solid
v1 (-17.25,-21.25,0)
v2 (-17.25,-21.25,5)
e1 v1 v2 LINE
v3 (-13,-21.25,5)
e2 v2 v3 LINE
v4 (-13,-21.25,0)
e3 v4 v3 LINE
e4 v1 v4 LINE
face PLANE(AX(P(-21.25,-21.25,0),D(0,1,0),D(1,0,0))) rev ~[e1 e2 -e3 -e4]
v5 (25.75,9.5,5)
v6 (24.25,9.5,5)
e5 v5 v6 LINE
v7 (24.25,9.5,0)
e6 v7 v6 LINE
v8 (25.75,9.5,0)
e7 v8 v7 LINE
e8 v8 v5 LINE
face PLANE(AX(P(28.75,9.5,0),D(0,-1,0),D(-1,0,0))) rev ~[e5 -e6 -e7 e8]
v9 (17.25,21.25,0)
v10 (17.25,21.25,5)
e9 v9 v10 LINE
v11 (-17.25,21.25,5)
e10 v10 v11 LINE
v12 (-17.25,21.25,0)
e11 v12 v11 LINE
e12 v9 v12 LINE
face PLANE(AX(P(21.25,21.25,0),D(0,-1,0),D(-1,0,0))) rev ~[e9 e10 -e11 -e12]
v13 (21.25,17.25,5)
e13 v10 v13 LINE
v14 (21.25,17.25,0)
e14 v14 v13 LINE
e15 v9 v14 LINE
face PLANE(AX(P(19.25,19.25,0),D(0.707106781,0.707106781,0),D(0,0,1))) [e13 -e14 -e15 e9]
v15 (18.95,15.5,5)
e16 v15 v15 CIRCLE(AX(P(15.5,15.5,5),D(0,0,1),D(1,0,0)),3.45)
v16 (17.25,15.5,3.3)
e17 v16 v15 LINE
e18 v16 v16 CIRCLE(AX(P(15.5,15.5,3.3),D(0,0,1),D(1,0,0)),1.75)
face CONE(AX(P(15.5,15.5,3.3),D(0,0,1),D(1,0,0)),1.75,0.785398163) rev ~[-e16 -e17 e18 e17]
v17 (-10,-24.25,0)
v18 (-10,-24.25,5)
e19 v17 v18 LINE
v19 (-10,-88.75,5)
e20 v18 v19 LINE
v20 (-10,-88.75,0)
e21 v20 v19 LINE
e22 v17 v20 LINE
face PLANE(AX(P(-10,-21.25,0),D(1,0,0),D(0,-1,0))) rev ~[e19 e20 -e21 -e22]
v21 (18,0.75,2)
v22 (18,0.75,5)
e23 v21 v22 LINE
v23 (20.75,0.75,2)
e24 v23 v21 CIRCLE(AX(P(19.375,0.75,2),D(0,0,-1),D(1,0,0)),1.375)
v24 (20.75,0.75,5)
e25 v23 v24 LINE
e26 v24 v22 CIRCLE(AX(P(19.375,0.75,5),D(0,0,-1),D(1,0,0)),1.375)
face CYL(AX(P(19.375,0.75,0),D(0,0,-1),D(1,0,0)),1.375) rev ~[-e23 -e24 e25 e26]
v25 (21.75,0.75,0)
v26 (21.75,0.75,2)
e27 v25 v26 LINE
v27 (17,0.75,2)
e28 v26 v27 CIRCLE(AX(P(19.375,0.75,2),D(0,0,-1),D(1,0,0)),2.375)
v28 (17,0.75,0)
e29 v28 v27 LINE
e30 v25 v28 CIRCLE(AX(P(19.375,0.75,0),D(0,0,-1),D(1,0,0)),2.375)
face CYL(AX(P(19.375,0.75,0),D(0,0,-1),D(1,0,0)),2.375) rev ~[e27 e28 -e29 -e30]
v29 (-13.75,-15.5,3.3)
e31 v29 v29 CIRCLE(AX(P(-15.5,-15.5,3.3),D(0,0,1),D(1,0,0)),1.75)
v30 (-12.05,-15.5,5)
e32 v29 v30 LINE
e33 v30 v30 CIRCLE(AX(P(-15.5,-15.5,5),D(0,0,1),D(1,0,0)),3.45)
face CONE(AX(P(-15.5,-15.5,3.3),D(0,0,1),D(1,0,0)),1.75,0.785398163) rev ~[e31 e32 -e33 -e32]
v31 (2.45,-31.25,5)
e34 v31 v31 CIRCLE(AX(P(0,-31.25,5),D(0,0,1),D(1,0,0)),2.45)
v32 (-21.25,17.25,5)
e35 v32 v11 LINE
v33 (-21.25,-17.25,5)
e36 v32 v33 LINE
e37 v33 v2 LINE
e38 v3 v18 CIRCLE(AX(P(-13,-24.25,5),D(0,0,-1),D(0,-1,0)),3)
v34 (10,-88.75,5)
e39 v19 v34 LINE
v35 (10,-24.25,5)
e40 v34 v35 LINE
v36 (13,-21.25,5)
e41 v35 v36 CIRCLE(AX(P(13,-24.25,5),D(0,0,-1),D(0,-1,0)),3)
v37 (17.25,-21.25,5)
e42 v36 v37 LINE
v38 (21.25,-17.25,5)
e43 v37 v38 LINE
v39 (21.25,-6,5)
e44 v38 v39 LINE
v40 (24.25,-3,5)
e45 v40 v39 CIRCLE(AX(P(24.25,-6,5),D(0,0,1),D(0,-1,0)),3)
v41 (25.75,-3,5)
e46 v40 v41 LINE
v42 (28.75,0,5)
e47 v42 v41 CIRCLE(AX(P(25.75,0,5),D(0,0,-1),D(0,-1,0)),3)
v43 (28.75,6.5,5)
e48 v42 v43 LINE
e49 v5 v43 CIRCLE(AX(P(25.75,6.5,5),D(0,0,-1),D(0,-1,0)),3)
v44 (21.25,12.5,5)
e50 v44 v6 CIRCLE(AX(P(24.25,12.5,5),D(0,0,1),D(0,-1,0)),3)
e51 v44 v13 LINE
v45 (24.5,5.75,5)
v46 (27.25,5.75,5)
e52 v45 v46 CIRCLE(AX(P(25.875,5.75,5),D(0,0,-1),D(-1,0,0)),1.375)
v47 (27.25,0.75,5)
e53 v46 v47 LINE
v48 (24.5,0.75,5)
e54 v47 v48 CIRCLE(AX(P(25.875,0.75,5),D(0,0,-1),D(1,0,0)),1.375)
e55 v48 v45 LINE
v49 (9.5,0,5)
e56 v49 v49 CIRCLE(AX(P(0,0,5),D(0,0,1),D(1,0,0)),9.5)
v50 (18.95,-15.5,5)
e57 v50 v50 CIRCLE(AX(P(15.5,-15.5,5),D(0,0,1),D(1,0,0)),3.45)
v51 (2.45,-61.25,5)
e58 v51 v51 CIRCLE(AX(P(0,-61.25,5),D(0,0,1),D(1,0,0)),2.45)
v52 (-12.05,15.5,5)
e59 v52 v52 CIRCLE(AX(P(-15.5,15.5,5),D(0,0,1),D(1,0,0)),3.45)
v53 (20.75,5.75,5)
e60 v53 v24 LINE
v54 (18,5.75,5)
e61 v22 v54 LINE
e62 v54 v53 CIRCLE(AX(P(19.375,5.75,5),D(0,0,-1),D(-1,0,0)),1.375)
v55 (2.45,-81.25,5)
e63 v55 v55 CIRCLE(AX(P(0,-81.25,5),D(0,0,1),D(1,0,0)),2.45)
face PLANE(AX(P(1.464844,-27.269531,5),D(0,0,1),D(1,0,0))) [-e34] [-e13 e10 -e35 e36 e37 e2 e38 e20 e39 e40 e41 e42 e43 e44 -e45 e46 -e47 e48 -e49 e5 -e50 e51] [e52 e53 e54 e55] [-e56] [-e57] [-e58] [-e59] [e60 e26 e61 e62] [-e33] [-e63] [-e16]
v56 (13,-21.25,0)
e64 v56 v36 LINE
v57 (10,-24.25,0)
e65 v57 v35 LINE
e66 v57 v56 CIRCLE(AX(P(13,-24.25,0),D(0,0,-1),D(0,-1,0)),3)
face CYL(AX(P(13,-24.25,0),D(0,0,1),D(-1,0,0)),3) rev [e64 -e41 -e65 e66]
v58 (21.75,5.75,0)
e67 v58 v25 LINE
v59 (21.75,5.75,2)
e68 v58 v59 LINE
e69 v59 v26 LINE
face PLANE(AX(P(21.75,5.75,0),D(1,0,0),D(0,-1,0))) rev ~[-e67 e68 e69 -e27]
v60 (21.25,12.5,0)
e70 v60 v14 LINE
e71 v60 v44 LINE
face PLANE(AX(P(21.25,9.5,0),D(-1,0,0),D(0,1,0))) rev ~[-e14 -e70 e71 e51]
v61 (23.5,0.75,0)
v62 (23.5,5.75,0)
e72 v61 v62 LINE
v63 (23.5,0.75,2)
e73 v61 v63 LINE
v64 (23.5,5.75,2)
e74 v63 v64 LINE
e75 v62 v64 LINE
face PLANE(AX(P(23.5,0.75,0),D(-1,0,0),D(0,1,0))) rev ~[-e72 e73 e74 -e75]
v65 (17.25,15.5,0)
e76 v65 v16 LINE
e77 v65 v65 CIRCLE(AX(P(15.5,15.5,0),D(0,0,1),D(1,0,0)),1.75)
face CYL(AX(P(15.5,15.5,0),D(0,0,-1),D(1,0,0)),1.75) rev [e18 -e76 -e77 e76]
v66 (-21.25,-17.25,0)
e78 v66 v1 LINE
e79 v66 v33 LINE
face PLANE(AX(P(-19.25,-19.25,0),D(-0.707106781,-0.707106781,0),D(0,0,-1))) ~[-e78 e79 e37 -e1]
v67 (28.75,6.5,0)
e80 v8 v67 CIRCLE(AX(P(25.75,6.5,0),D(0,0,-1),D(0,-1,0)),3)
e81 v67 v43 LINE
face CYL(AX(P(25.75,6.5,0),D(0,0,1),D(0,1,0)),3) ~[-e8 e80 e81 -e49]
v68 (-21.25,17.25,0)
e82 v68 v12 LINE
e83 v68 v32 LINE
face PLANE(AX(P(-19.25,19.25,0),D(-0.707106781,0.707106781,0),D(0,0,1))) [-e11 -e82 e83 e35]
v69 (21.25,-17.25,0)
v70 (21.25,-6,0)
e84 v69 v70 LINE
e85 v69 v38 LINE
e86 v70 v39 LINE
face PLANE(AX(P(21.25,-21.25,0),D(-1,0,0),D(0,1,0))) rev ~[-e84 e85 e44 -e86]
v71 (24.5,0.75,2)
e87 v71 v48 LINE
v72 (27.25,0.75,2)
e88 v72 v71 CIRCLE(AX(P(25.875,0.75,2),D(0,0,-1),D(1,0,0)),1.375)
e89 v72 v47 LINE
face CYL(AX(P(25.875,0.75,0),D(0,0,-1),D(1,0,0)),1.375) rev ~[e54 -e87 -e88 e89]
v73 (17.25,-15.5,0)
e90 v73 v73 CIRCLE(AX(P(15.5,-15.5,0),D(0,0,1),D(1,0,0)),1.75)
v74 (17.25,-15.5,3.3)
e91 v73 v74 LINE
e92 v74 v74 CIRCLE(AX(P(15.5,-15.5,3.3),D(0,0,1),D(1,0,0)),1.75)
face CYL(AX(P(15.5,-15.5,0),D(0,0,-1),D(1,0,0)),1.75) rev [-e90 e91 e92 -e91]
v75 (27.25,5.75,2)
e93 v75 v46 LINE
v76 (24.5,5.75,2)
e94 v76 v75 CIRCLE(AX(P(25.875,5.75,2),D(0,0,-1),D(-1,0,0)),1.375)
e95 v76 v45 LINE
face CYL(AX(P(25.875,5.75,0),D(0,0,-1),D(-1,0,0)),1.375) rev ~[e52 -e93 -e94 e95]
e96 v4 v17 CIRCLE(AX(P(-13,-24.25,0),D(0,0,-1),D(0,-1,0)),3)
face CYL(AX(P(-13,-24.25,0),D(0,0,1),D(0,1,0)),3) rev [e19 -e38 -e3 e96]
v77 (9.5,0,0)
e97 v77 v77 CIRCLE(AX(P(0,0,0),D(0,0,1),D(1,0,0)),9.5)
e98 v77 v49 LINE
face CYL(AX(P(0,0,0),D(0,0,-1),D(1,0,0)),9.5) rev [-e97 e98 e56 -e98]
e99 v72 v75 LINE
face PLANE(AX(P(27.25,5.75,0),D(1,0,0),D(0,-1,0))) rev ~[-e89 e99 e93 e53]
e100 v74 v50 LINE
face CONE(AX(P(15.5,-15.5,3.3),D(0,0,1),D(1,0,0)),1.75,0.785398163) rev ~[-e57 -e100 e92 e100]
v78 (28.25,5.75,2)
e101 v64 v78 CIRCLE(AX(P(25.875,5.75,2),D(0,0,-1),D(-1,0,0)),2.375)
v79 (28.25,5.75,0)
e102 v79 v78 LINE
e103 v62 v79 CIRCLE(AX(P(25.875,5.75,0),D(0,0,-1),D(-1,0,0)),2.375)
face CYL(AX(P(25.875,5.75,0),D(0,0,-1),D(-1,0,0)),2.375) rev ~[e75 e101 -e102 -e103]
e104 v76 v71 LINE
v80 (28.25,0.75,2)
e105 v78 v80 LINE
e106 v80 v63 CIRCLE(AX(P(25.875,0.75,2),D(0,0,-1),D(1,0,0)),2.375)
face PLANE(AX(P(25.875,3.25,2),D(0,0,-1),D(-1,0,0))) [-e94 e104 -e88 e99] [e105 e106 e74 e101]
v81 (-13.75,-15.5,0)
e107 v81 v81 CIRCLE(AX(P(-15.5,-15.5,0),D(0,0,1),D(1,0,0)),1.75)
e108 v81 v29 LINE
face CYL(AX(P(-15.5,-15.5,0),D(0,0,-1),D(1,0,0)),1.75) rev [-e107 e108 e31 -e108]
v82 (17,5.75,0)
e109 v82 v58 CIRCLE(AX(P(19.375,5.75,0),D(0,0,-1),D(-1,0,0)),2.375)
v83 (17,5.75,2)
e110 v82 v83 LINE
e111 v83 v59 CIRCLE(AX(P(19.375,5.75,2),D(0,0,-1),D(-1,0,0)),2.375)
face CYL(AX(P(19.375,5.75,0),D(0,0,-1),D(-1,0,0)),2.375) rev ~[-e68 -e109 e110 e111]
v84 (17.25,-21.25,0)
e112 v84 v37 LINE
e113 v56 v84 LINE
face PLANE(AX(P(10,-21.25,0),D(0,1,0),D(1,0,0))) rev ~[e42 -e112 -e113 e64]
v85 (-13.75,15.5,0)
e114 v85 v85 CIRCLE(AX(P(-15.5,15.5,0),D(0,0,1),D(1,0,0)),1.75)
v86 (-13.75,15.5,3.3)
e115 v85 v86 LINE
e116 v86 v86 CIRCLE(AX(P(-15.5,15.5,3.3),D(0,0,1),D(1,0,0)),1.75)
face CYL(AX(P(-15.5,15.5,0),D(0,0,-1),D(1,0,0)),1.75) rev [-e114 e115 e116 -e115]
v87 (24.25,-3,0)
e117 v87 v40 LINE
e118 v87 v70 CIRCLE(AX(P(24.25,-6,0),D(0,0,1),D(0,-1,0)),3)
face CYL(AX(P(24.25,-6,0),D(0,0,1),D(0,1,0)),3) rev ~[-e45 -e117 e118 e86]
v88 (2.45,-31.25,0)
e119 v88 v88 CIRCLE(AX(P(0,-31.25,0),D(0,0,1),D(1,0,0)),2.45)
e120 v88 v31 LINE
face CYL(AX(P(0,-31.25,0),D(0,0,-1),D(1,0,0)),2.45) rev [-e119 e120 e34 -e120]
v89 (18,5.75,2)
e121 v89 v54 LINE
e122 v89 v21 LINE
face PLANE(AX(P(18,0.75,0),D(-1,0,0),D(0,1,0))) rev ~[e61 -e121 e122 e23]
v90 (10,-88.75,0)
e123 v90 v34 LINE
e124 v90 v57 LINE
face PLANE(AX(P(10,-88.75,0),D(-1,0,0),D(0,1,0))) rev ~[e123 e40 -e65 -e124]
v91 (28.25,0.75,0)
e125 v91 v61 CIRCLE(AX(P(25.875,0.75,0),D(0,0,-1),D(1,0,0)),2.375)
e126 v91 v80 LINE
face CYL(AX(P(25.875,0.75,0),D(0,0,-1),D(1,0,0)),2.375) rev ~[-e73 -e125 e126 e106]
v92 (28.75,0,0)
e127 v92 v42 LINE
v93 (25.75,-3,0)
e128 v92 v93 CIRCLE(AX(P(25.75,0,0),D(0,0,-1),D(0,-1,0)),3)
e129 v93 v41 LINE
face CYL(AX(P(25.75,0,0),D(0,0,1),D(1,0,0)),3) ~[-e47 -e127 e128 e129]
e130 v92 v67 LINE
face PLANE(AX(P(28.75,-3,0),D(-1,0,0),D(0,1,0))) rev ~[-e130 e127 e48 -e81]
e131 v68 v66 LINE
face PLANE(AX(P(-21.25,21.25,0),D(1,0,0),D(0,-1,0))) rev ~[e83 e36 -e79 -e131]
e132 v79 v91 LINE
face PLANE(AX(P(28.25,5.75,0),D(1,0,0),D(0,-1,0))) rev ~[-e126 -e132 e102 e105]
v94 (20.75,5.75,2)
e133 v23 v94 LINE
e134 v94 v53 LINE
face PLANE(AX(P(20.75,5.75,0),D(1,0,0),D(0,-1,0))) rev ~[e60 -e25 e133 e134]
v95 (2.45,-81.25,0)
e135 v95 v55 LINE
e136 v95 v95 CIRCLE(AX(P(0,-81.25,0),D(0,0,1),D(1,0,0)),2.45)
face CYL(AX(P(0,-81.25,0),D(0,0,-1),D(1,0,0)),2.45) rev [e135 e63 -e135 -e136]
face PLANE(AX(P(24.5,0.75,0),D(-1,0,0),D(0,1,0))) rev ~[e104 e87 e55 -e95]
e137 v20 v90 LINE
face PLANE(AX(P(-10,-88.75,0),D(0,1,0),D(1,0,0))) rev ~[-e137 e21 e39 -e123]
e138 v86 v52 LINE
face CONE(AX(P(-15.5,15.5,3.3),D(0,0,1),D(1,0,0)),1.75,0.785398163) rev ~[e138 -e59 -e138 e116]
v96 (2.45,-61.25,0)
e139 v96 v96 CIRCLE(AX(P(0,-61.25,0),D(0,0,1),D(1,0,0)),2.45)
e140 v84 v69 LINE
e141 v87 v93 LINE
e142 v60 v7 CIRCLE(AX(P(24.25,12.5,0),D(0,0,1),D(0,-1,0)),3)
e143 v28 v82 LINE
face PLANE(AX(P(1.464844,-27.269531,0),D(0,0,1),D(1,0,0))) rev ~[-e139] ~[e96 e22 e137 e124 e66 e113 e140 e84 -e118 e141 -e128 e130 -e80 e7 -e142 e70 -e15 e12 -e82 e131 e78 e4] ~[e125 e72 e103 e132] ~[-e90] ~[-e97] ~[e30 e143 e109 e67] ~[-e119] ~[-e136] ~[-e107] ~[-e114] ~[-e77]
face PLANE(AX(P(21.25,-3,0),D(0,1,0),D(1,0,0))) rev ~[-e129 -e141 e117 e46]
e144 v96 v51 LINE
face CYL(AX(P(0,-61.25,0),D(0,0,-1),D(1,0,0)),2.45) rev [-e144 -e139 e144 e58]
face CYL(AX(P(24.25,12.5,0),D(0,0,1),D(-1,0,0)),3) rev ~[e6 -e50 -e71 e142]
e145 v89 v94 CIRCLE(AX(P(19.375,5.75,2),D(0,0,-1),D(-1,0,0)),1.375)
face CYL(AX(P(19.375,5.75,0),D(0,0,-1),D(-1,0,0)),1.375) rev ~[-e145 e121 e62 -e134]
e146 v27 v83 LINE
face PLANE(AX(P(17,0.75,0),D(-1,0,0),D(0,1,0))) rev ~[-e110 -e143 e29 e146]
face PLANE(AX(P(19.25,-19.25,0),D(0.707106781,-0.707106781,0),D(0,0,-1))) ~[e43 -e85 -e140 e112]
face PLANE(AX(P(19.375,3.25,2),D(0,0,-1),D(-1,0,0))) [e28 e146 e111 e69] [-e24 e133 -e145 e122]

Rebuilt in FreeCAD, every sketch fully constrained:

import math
import FreeCAD as App
import Part
import Sketcher
from FreeCAD import Vector


def edges_at(feature, points):
    """Names of the edges that pass closest to the given points."""
    edges = feature.Shape.Edges
    near = lambda p: min(range(len(edges)), key=lambda i: edges[i].distToShape(Part.Vertex(*p))[0])
    return sorted({f"Edge{near(p) + 1}" for p in points})

doc = App.newDocument("Part")
body = doc.addObject("PartDesign::Body", "Body")

# Sketch on XY plane
sketch1 = doc.addObject("Sketcher::SketchObject", "Sketch")
body.addObject(sketch1)
sketch1.AttachmentSupport = (doc.XY_Plane, [""])
sketch1.MapMode = "FlatFace"
sketch1.addGeometry([
    Part.LineSegment(Vector(-21.2, 21.2, 0), Vector(-21.2, -21.2, 0)),  # 0
    Part.LineSegment(Vector(-21.2, -21.2, 0), Vector(-10, -21.2, 0)),  # 1
    Part.LineSegment(Vector(-10, -21.2, 0), Vector(-10, -88.8, 0)),  # 2
    Part.LineSegment(Vector(-10, -88.8, 0), Vector(10, -88.8, 0)),  # 3
    Part.LineSegment(Vector(10, -88.8, 0), Vector(10, -21.2, 0)),  # 4
    Part.LineSegment(Vector(10, -21.2, 0), Vector(21.2, -21.2, 0)),  # 5
    Part.LineSegment(Vector(21.2, -21.2, 0), Vector(21.2, -3, 0)),  # 6
    Part.LineSegment(Vector(21.2, -3, 0), Vector(28.8, -3, 0)),  # 7
    Part.LineSegment(Vector(28.8, -3, 0), Vector(28.8, 9.5, 0)),  # 8
    Part.LineSegment(Vector(28.8, 9.5, 0), Vector(21.2, 9.5, 0)),  # 9
    Part.LineSegment(Vector(21.2, 9.5, 0), Vector(21.2, 21.2, 0)),  # 10
    Part.LineSegment(Vector(21.2, 21.2, 0), Vector(-21.2, 21.2, 0)),  # 11
    Part.Circle(Vector(0, -81.2, 0), Vector(0, 0, 1), 2.5),  # 12
    Part.Circle(Vector(0, -61.2, 0), Vector(0, 0, 1), 2.5),  # 13
    Part.Circle(Vector(-15.5, -15.5, 0), Vector(0, 0, 1), 1.8),  # 14
    Part.Circle(Vector(0, -31.2, 0), Vector(0, 0, 1), 2.5),  # 15
    Part.Circle(Vector(-15.5, 15.5, 0), Vector(0, 0, 1), 1.8),  # 16
    Part.Circle(Vector(0, 0, 0), Vector(0, 0, 1), 9.5),  # 17
    Part.Circle(Vector(15.5, -15.5, 0), Vector(0, 0, 1), 1.8),  # 18
    Part.Circle(Vector(15.5, 15.5, 0), Vector(0, 0, 1), 1.8),  # 19
    Part.LineSegment(Vector(20.8, 5.8, 0), Vector(20.8, 0.8, 0)),  # 20
    Part.ArcOfCircle(Part.Circle(Vector(19.4, 0.8, 0), Vector(0, 0, 1), 1.4), math.radians(180), math.radians(360)),  # 21
    Part.LineSegment(Vector(18, 0.8, 0), Vector(18, 5.8, 0)),  # 22
    Part.ArcOfCircle(Part.Circle(Vector(19.4, 5.8, 0), Vector(0, 0, 1), 1.4), math.radians(0), math.radians(180)),  # 23
    Part.ArcOfCircle(Part.Circle(Vector(25.9, 0.8, 0), Vector(0, 0, 1), 1.4), math.radians(180), math.radians(360)),  # 24
    Part.LineSegment(Vector(24.5, 0.8, 0), Vector(24.5, 5.8, 0)),  # 25
    Part.ArcOfCircle(Part.Circle(Vector(25.9, 5.8, 0), Vector(0, 0, 1), 1.4), math.radians(0), math.radians(180)),  # 26
    Part.LineSegment(Vector(27.2, 5.8, 0), Vector(27.2, 0.8, 0)),  # 27
], False)
sketch1.addConstraint([
    Sketcher.Constraint("Coincident", 0, 2, 1, 1),
    Sketcher.Constraint("Coincident", 1, 2, 2, 1),
    Sketcher.Constraint("Coincident", 2, 2, 3, 1),
    Sketcher.Constraint("Coincident", 3, 2, 4, 1),
    Sketcher.Constraint("Coincident", 4, 2, 5, 1),
    Sketcher.Constraint("Coincident", 5, 2, 6, 1),
    Sketcher.Constraint("Coincident", 6, 2, 7, 1),
    Sketcher.Constraint("Coincident", 7, 2, 8, 1),
    Sketcher.Constraint("Coincident", 8, 2, 9, 1),
    Sketcher.Constraint("Coincident", 9, 2, 10, 1),
    Sketcher.Constraint("Coincident", 10, 2, 11, 1),
    Sketcher.Constraint("Coincident", 11, 2, 0, 1),
    Sketcher.Constraint("Tangent", 20, 2, 21, 2),
    Sketcher.Constraint("Tangent", 21, 1, 22, 1),
    Sketcher.Constraint("Tangent", 22, 2, 23, 2),
    Sketcher.Constraint("Tangent", 23, 1, 20, 1),
    Sketcher.Constraint("Tangent", 24, 1, 25, 1),
    Sketcher.Constraint("Tangent", 25, 2, 26, 2),
    Sketcher.Constraint("Tangent", 26, 1, 27, 1),
    Sketcher.Constraint("Tangent", 27, 2, 24, 2),
    Sketcher.Constraint("Vertical", 0),
    Sketcher.Constraint("Horizontal", 1),
    Sketcher.Constraint("Vertical", 2),
    Sketcher.Constraint("Horizontal", 3),
    Sketcher.Constraint("Vertical", 4),
    Sketcher.Constraint("Horizontal", 5),
    Sketcher.Constraint("Vertical", 6),
    Sketcher.Constraint("Horizontal", 7),
    Sketcher.Constraint("Vertical", 8),
    Sketcher.Constraint("Horizontal", 9),
    Sketcher.Constraint("Vertical", 10),
    Sketcher.Constraint("Horizontal", 11),
    Sketcher.Constraint("Vertical", 20),
    Sketcher.Constraint("Vertical", 22),
    Sketcher.Constraint("Vertical", 25),
    Sketcher.Constraint("Vertical", 27),
    Sketcher.Constraint("Coincident", 17, 3, -1, 1),
    Sketcher.Constraint("Equal", 12, 13),
    Sketcher.Constraint("Equal", 13, 15),
    Sketcher.Constraint("Equal", 14, 16),
    Sketcher.Constraint("Equal", 16, 18),
    Sketcher.Constraint("Equal", 18, 19),
    Sketcher.Constraint("Equal", 23, 24),
    Sketcher.Constraint("Symmetric", 16, 3, 18, 3, -1, 1),
    Sketcher.Constraint("Symmetric", 14, 3, 19, 3, -1, 1),
    Sketcher.Constraint("Symmetric", 0, 2, 10, 2, -1, 1),
    Sketcher.Constraint("Symmetric", 5, 2, 11, 2, -1, 1),
    Sketcher.Constraint("Symmetric", 14, 3, 18, 3, -2),
    Sketcher.Constraint("PointOnObject", 12, 3, -2),
    Sketcher.Constraint("PointOnObject", 13, 3, -2),
    Sketcher.Constraint("PointOnObject", 15, 3, -2),
    Sketcher.Constraint("Horizontal", 21, 3, 24, 3),
    Sketcher.Constraint("Horizontal", 23, 3, 26, 3),
    Sketcher.Constraint("Equal", 1, 5),
    Sketcher.Constraint("Equal", 11, 0),
    Sketcher.Constraint("Diameter", 17, 19.0),
    Sketcher.Constraint("Diameter", 12, 4.9),
    Sketcher.Constraint("Diameter", 14, 3.5),
    Sketcher.Constraint("DistanceX", 3, 1, 3, 2, 20.0),
    Sketcher.Constraint("DistanceY", 20, 2, 20, 1, 5.0),
    Sketcher.Constraint("DistanceX", 7, 1, 7, 2, 7.5),
    Sketcher.Constraint("DistanceX", 11, 2, 11, 1, 42.5),
    Sketcher.Constraint("DistanceY", 2, 2, 2, 1, 67.5),
    Sketcher.Constraint("DistanceY", 8, 1, 8, 2, 12.5),
    Sketcher.Constraint("DistanceY", 6, 2, -1, 1, 3.0),
    Sketcher.Constraint("DistanceX", -1, 1, 21, 1, 18.0),
    Sketcher.Constraint("Radius", 21, 1.375),
    Sketcher.Constraint("DistanceY", 12, 3, 13, 3, 20.0),
    Sketcher.Constraint("DistanceY", 13, 3, 15, 3, 30.0),
    Sketcher.Constraint("DistanceY", 14, 3, 16, 3, 31.0),
    Sketcher.Constraint("DistanceX", 14, 3, 18, 3, 31.0),
    Sketcher.Constraint("DistanceY", 15, 3, 21, 3, 32.0),
    Sketcher.Constraint("DistanceY", 15, 3, 0, 2, 10.0),
    Sketcher.Constraint("DistanceX", -1, 1, 24, 1, 24.5),
])
pad1 = doc.addObject("PartDesign::Pad", "Pad")
body.addObject(pad1)
pad1.Profile = sketch1
pad1.Length = 5
doc.recompute()

chamfer = doc.addObject("PartDesign::Chamfer", "Chamfer")
body.addObject(chamfer)
chamfer.Base = (pad1, edges_at(pad1, [
    (-21.25, -21.25, 2.5),
    (-21.25, 21.25, 2.5),
    (21.25, 21.25, 2.5),
    (21.25, -21.25, 2.5),
]))
chamfer.Size = 4
doc.recompute()

fillet = doc.addObject("PartDesign::Fillet", "Fillet")
body.addObject(fillet)
fillet.Base = (chamfer, edges_at(chamfer, [
    (21.25, 9.5, 2.5),
    (28.75, 9.5, 2.5),
    (28.75, -3, 2.5),
    (21.25, -3, 2.5),
    (10, -21.25, 2.5),
    (-10, -21.25, 2.5),
]))
fillet.Radius = 3
doc.recompute()

chamfer2 = doc.addObject("PartDesign::Chamfer", "Chamfer001")
body.addObject(chamfer2)
chamfer2.Base = (fillet, edges_at(fillet, [
    (-17.25, -15.5, 5),
    (13.75, -15.5, 5),
    (13.75, 15.5, 5),
    (-17.25, 15.5, 5),
]))
chamfer2.Size = 1.7

# Sketch on XY plane
sketch2 = doc.addObject("Sketcher::SketchObject", "Sketch001")
body.addObject(sketch2)
sketch2.AttachmentSupport = (doc.XY_Plane, [""])
sketch2.MapMode = "FlatFace"
sketch2.addGeometry([
    Part.LineSegment(Vector(28.2, 5.8, 0), Vector(28.2, 0.8, 0)),  # 0
    Part.ArcOfCircle(Part.Circle(Vector(25.9, 0.8, 0), Vector(0, 0, 1), 2.4), math.radians(180), math.radians(360)),  # 1
    Part.LineSegment(Vector(23.5, 0.8, 0), Vector(23.5, 5.8, 0)),  # 2
    Part.ArcOfCircle(Part.Circle(Vector(25.9, 5.8, 0), Vector(0, 0, 1), 2.4), math.radians(0), math.radians(180)),  # 3
    Part.LineSegment(Vector(17, 0.8, 0), Vector(17, 5.8, 0)),  # 4
    Part.ArcOfCircle(Part.Circle(Vector(19.4, 5.8, 0), Vector(0, 0, 1), 2.4), math.radians(0), math.radians(180)),  # 5
    Part.LineSegment(Vector(21.8, 5.8, 0), Vector(21.8, 0.8, 0)),  # 6
    Part.ArcOfCircle(Part.Circle(Vector(19.4, 0.8, 0), Vector(0, 0, 1), 2.4), math.radians(180), math.radians(360)),  # 7
], False)
sketch2.addConstraint([
    Sketcher.Constraint("Tangent", 0, 2, 1, 2),
    Sketcher.Constraint("Tangent", 1, 1, 2, 1),
    Sketcher.Constraint("Tangent", 2, 2, 3, 2),
    Sketcher.Constraint("Tangent", 3, 1, 0, 1),
    Sketcher.Constraint("Tangent", 4, 2, 5, 2),
    Sketcher.Constraint("Tangent", 5, 1, 6, 1),
    Sketcher.Constraint("Tangent", 6, 2, 7, 2),
    Sketcher.Constraint("Tangent", 7, 1, 4, 1),
    Sketcher.Constraint("Vertical", 0),
    Sketcher.Constraint("Vertical", 2),
    Sketcher.Constraint("Vertical", 4),
    Sketcher.Constraint("Vertical", 6),
    Sketcher.Constraint("Equal", 3, 5),
    Sketcher.Constraint("Horizontal", 3, 3, 5, 3),
    Sketcher.Constraint("Horizontal", 1, 3, 7, 3),
    Sketcher.Constraint("DistanceY", 0, 2, 0, 1, 5.0),
    Sketcher.Constraint("DistanceX", -1, 1, 4, 2, 17.0),
    Sketcher.Constraint("Radius", 1, 2.375),
    Sketcher.Constraint("DistanceX", -1, 1, 1, 1, 23.5),
    Sketcher.Constraint("DistanceY", -1, 1, 1, 3, 0.75),
])
pocket1 = doc.addObject("PartDesign::Pocket", "Pocket")
body.addObject(pocket1)
pocket1.Profile = sketch2
pocket1.Length = 2
pocket1.Reversed = True

doc.recompute()
